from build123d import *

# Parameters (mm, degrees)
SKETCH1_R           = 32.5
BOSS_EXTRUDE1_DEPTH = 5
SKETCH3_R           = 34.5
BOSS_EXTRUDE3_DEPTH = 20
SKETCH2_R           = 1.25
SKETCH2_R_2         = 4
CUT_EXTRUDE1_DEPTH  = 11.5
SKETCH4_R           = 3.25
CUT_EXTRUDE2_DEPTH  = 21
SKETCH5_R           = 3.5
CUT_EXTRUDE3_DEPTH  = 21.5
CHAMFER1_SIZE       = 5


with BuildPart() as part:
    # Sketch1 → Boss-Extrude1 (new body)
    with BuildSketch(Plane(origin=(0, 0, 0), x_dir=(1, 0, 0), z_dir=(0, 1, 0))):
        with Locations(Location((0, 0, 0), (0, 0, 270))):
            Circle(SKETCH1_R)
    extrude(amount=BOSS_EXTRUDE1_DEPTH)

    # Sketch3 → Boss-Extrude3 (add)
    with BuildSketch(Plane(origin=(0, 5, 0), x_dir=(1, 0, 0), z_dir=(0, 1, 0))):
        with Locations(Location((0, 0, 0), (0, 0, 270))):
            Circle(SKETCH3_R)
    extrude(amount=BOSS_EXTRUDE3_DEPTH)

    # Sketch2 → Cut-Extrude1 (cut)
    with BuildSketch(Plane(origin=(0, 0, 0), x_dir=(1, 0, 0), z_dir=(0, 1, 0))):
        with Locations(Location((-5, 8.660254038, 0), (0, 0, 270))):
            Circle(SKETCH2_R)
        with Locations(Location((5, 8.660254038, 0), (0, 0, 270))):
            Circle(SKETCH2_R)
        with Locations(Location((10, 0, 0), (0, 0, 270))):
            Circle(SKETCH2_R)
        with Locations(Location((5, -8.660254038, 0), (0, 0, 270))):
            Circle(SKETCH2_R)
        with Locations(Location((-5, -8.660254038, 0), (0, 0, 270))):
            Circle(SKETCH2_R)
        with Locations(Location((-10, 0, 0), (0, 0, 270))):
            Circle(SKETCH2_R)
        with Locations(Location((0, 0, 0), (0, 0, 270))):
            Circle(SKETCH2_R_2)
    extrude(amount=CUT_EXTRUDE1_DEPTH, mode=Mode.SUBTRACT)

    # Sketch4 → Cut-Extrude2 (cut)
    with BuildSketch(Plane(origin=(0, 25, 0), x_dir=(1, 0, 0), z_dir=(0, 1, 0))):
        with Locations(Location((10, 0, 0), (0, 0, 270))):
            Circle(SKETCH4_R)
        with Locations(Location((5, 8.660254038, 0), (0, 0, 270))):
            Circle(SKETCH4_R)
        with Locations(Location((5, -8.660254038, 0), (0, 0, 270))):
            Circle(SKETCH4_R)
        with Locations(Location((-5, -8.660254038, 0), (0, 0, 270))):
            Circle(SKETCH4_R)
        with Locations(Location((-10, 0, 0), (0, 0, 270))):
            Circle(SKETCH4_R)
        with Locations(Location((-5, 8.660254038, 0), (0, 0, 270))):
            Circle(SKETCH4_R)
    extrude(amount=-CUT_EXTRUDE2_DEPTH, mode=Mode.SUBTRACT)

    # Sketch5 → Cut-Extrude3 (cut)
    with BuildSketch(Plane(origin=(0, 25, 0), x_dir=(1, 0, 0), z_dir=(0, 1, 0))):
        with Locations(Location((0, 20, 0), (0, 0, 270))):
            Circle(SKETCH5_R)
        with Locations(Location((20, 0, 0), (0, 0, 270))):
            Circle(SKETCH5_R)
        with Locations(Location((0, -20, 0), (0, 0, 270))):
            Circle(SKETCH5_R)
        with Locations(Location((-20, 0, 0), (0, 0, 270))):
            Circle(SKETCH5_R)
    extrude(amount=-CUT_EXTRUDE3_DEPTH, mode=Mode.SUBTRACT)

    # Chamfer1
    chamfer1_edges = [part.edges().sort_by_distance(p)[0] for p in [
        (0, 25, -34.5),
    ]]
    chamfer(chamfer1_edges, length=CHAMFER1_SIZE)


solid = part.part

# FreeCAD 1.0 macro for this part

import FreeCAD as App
import Part
import Sketcher
from FreeCAD import Vector


def edges_at(feature, points):
    """Names of the edges that pass closest to the given points."""
    edges = feature.Shape.Edges
    near = lambda p: min(range(len(edges)), key=lambda i: edges[i].distToShape(Part.Vertex(*p))[0])
    return sorted({f"Edge{near(p) + 1}" for p in points})

doc = App.newDocument("Part")
body = doc.addObject("PartDesign::Body", "Body")

# Sketch on XZ plane
sketch1 = doc.addObject("Sketcher::SketchObject", "Sketch")
body.addObject(sketch1)
sketch1.AttachmentSupport = (doc.XZ_Plane, [""])
sketch1.MapMode = "FlatFace"
sketch1.addGeometry(Part.Circle(Vector(0, 0, 0), Vector(0, 0, 1), 32.5), False)
sketch1.addConstraint(Sketcher.Constraint("Coincident", 0, 3, -1, 1))
sketch1.addConstraint(Sketcher.Constraint("Diameter", 0, 65.0))
pad1 = doc.addObject("PartDesign::Pad", "Pad")
body.addObject(pad1)
pad1.Profile = sketch1
pad1.Length = 5
pad1.Reversed = True

# Sketch on XZ plane
sketch2 = doc.addObject("Sketcher::SketchObject", "Sketch001")
body.addObject(sketch2)
sketch2.AttachmentSupport = (doc.XZ_Plane, [""])
sketch2.MapMode = "FlatFace"
sketch2.AttachmentOffset = App.Placement(Vector(0, 0, -5), App.Rotation())
sketch2.addGeometry(Part.Circle(Vector(0, 0, 0), Vector(0, 0, 1), 34.5), False)
sketch2.addConstraint(Sketcher.Constraint("Coincident", 0, 3, -1, 1))
sketch2.addConstraint(Sketcher.Constraint("Diameter", 0, 69.0))
pad2 = doc.addObject("PartDesign::Pad", "Pad001")
body.addObject(pad2)
pad2.Profile = sketch2
pad2.Length = 20
pad2.Reversed = True

# Sketch on XZ plane
sketch3 = doc.addObject("Sketcher::SketchObject", "Sketch002")
body.addObject(sketch3)
sketch3.AttachmentSupport = (doc.XZ_Plane, [""])
sketch3.MapMode = "FlatFace"
sketch3.addGeometry(Part.Circle(Vector(-5, -8.660254, 0), Vector(0, 0, 1), 1.25), False)
sketch3.addGeometry(Part.Circle(Vector(5, -8.660254, 0), Vector(0, 0, 1), 1.25), False)
sketch3.addGeometry(Part.Circle(Vector(10, 0, 0), Vector(0, 0, 1), 1.25), False)
sketch3.addGeometry(Part.Circle(Vector(5, 8.660254, 0), Vector(0, 0, 1), 1.25), False)
sketch3.addGeometry(Part.Circle(Vector(-5, 8.660254, 0), Vector(0, 0, 1), 1.25), False)
sketch3.addGeometry(Part.Circle(Vector(-10, 0, 0), Vector(0, 0, 1), 1.25), False)
sketch3.addGeometry(Part.Circle(Vector(0, 0, 0), Vector(0, 0, 1), 4), False)
sketch3.addConstraint(Sketcher.Constraint("Coincident", 6, 3, -1, 1))
sketch3.addConstraint(Sketcher.Constraint("Equal", 0, 1))
sketch3.addConstraint(Sketcher.Constraint("Equal", 1, 2))
sketch3.addConstraint(Sketcher.Constraint("Equal", 2, 3))
sketch3.addConstraint(Sketcher.Constraint("Equal", 3, 4))
sketch3.addConstraint(Sketcher.Constraint("Equal", 4, 5))
sketch3.addConstraint(Sketcher.Constraint("Symmetric", 0, 3, 3, 3, -1, 1))
sketch3.addConstraint(Sketcher.Constraint("Symmetric", 1, 3, 4, 3, -1, 1))
sketch3.addConstraint(Sketcher.Constraint("Symmetric", 2, 3, 5, 3, -1, 1))
sketch3.addConstraint(Sketcher.Constraint("Symmetric", 0, 3, 1, 3, -2))
sketch3.addConstraint(Sketcher.Constraint("PointOnObject", 2, 3, -1))
sketch3.addConstraint(Sketcher.Constraint("Diameter", 6, 8.0))
sketch3.addConstraint(Sketcher.Constraint("Diameter", 0, 2.5))
sketch3.addConstraint(Sketcher.Constraint("DistanceX", 0, 3, -1, 1, 5.0))
sketch3.addConstraint(Sketcher.Constraint("DistanceX", -1, 1, 2, 3, 10.0))
sketch3.addConstraint(Sketcher.Constraint("DistanceY", 1, 3, 3, 3, 17.320508))
pocket1 = doc.addObject("PartDesign::Pocket", "Pocket")
body.addObject(pocket1)
pocket1.Profile = sketch3
pocket1.Length = 11.5

# Sketch on XZ plane
sketch4 = doc.addObject("Sketcher::SketchObject", "Sketch003")
body.addObject(sketch4)
sketch4.AttachmentSupport = (doc.XZ_Plane, [""])
sketch4.MapMode = "FlatFace"
sketch4.AttachmentOffset = App.Placement(Vector(0, 0, -25), App.Rotation())
sketch4.addGeometry(Part.Circle(Vector(10, 0, 0), Vector(0, 0, 1), 3.25), False)
sketch4.addGeometry(Part.Circle(Vector(5, -8.660254, 0), Vector(0, 0, 1), 3.25), False)
sketch4.addGeometry(Part.Circle(Vector(5, 8.660254, 0), Vector(0, 0, 1), 3.25), False)
sketch4.addGeometry(Part.Circle(Vector(-5, 8.660254, 0), Vector(0, 0, 1), 3.25), False)
sketch4.addGeometry(Part.Circle(Vector(-10, 0, 0), Vector(0, 0, 1), 3.25), False)
sketch4.addGeometry(Part.Circle(Vector(-5, -8.660254, 0), Vector(0, 0, 1), 3.25), False)
sketch4.addConstraint(Sketcher.Constraint("Equal", 0, 1))
sketch4.addConstraint(Sketcher.Constraint("Equal", 1, 2))
sketch4.addConstraint(Sketcher.Constraint("Equal", 2, 3))
sketch4.addConstraint(Sketcher.Constraint("Equal", 3, 4))
sketch4.addConstraint(Sketcher.Constraint("Equal", 4, 5))
sketch4.addConstraint(Sketcher.Constraint("Symmetric", 1, 3, 3, 3, -1, 1))
sketch4.addConstraint(Sketcher.Constraint("Symmetric", 0, 3, 4, 3, -1, 1))
sketch4.addConstraint(Sketcher.Constraint("Symmetric", 2, 3, 5, 3, -1, 1))
sketch4.addConstraint(Sketcher.Constraint("Symmetric", 2, 3, 3, 3, -2))
sketch4.addConstraint(Sketcher.Constraint("PointOnObject", 0, 3, -1))
sketch4.addConstraint(Sketcher.Constraint("Diameter", 0, 6.5))
sketch4.addConstraint(Sketcher.Constraint("DistanceX", -1, 1, 0, 3, 10.0))
sketch4.addConstraint(Sketcher.Constraint("DistanceX", -1, 1, 1, 3, 5.0))
sketch4.addConstraint(Sketcher.Constraint("DistanceY", 1, 3, 2, 3, 17.320508))
pocket2 = doc.addObject("PartDesign::Pocket", "Pocket001")
body.addObject(pocket2)
pocket2.Profile = sketch4
pocket2.Length = 21
pocket2.Reversed = True

# Sketch on XZ plane
sketch5 = doc.addObject("Sketcher::SketchObject", "Sketch004")
body.addObject(sketch5)
sketch5.AttachmentSupport = (doc.XZ_Plane, [""])
sketch5.MapMode = "FlatFace"
sketch5.AttachmentOffset = App.Placement(Vector(0, 0, -25), App.Rotation())
sketch5.addGeometry(Part.Circle(Vector(0, -20, 0), Vector(0, 0, 1), 3.5), False)
sketch5.addGeometry(Part.Circle(Vector(20, 0, 0), Vector(0, 0, 1), 3.5), False)
sketch5.addGeometry(Part.Circle(Vector(0, 20, 0), Vector(0, 0, 1), 3.5), False)
sketch5.addGeometry(Part.Circle(Vector(-20, 0, 0), Vector(0, 0, 1), 3.5), False)
sketch5.addConstraint(Sketcher.Constraint("Equal", 0, 1))
sketch5.addConstraint(Sketcher.Constraint("Equal", 1, 2))
sketch5.addConstraint(Sketcher.Constraint("Equal", 2, 3))
sketch5.addConstraint(Sketcher.Constraint("Symmetric", 0, 3, 2, 3, -1, 1))
sketch5.addConstraint(Sketcher.Constraint("Symmetric", 1, 3, 3, 3, -1, 1))
sketch5.addConstraint(Sketcher.Constraint("PointOnObject", 0, 3, -2))
sketch5.addConstraint(Sketcher.Constraint("PointOnObject", 1, 3, -1))
sketch5.addConstraint(Sketcher.Constraint("Diameter", 0, 7.0))
sketch5.addConstraint(Sketcher.Constraint("DistanceY", 0, 3, -1, 1, 20.0))
sketch5.addConstraint(Sketcher.Constraint("DistanceX", -1, 1, 1, 3, 20.0))
pocket3 = doc.addObject("PartDesign::Pocket", "Pocket002")
body.addObject(pocket3)
pocket3.Profile = sketch5
pocket3.Length = 21.5
pocket3.Reversed = True
doc.recompute()

chamfer = doc.addObject("PartDesign::Chamfer", "Chamfer")
body.addObject(chamfer)
chamfer.Base = (pocket3, edges_at(pocket3, [(0, 25, -34.5)]))
chamfer.Size = 5

doc.recompute()
